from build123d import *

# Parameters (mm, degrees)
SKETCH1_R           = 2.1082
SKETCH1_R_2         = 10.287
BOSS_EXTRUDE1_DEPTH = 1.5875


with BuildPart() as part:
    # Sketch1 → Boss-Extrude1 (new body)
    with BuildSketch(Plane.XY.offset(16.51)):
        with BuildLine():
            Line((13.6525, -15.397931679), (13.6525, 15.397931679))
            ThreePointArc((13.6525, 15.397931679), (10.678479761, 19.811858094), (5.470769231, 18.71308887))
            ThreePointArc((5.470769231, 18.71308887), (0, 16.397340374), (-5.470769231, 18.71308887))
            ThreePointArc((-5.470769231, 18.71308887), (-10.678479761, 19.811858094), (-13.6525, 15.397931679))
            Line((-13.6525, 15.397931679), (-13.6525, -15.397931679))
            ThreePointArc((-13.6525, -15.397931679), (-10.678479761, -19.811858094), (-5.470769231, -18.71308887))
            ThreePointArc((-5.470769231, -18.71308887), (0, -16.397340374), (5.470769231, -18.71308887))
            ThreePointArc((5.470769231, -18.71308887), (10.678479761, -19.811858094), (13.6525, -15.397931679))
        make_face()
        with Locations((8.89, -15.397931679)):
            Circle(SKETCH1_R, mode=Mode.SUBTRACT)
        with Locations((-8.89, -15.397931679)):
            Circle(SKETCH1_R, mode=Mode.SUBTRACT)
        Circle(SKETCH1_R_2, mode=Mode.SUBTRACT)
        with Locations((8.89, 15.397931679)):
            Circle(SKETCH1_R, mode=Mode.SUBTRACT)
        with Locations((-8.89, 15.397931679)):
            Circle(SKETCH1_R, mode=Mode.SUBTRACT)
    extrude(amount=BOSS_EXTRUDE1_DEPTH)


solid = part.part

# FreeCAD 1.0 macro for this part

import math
import FreeCAD as App
import Part
import Sketcher
Q = App.Units.Quantity

doc = App.newDocument("Part")
body = doc.addObject("PartDesign::Body", "Body")

# Sketch on XY plane
sketch1 = doc.addObject("Sketcher::SketchObject", "Sketch")
body.addObject(sketch1)
sketch1.AttachmentSupport = (doc.XY_Plane, [""])
sketch1.MapMode = "FlatFace"
sketch1.AttachmentOffset = App.Placement(App.Vector(0, 0, 0.65 * 25.4), App.Rotation())
sketch1.addGeometry([
    Part.LineSegment(App.Vector(13.7, -15.4, 0), App.Vector(13.7, 15.4, 0)),  # 0
    Part.ArcOfCircle(Part.Circle(App.Vector(8.9, 15.4, 0), App.Vector(0, 0, 1), 4.8), math.radians(0), math.radians(136)),  # 1
    Part.ArcOfCircle(Part.Circle(App.Vector(0, 24, 0), App.Vector(0, 0, 1), 7.6), math.radians(-136), math.radians(-44)),  # 2
    Part.ArcOfCircle(Part.Circle(App.Vector(-8.9, 15.4, 0), App.Vector(0, 0, 1), 4.8), math.radians(44), math.radians(180)),  # 3
    Part.LineSegment(App.Vector(-13.7, 15.4, 0), App.Vector(-13.7, -15.4, 0)),  # 4
    Part.ArcOfCircle(Part.Circle(App.Vector(-8.9, -15.4, 0), App.Vector(0, 0, 1), 4.8), math.radians(180), math.radians(316)),  # 5
    Part.ArcOfCircle(Part.Circle(App.Vector(0, -24, 0), App.Vector(0, 0, 1), 7.6), math.radians(44), math.radians(136)),  # 6
    Part.ArcOfCircle(Part.Circle(App.Vector(8.9, -15.4, 0), App.Vector(0, 0, 1), 4.8), math.radians(-136), math.radians(0)),  # 7
    Part.Circle(App.Vector(-8.9, -15.4, 0), App.Vector(0, 0, 1), 2.1),  # 8
    Part.Circle(App.Vector(8.9, -15.4, 0), App.Vector(0, 0, 1), 2.1),  # 9
    Part.Circle(App.Vector(-8.9, 15.4, 0), App.Vector(0, 0, 1), 2.1),  # 10
    Part.Circle(App.Vector(0, 0, 0), App.Vector(0, 0, 1), 10.3),  # 11
    Part.Circle(App.Vector(8.9, 15.4, 0), App.Vector(0, 0, 1), 2.1),  # 12
], False)
sketch1.addConstraint([
    Sketcher.Constraint("Tangent", 0, 2, 1, 1),
    Sketcher.Constraint("Tangent", 1, 2, 2, 2),
    Sketcher.Constraint("Tangent", 2, 1, 3, 1),
    Sketcher.Constraint("Tangent", 3, 2, 4, 1),
    Sketcher.Constraint("Tangent", 4, 2, 5, 1),
    Sketcher.Constraint("Tangent", 5, 2, 6, 2),
    Sketcher.Constraint("Tangent", 6, 1, 7, 1),
    Sketcher.Constraint("Tangent", 7, 2, 0, 1),
    Sketcher.Constraint("Vertical", 0),
    Sketcher.Constraint("Vertical", 4),
    Sketcher.Constraint("Coincident", 11, 3, -1, 1),
    Sketcher.Constraint("Coincident", 8, 3, 5, 3),
    Sketcher.Constraint("Coincident", 9, 3, 7, 3),
    Sketcher.Constraint("Coincident", 10, 3, 3, 3),
    Sketcher.Constraint("Coincident", 12, 3, 1, 3),
    Sketcher.Constraint("Equal", 1, 3),
    Sketcher.Constraint("Equal", 3, 5),
    Sketcher.Constraint("Equal", 2, 6),
    Sketcher.Constraint("Equal", 5, 7),
    Sketcher.Constraint("Equal", 8, 9),
    Sketcher.Constraint("Equal", 9, 10),
    Sketcher.Constraint("Equal", 10, 12),
    Sketcher.Constraint("Symmetric", 1, 3, 5, 3, -1, 1),
    Sketcher.Constraint("Symmetric", 2, 3, 6, 3, -1),
    Sketcher.Constraint("Radius", 2, Q("0.3 in")),
    Sketcher.Constraint("Diameter", 11, Q("0.81 in")),
    Sketcher.Constraint("Diameter", 8, Q("0.166 in")),
    Sketcher.Constraint("Radius", 1, Q("0.1875 in")),
    Sketcher.Constraint("DistanceX", 3, 3, 1, 3, Q("0.7 in")),
    Sketcher.Constraint("DistanceY", 0, 1, 0, 2, 30.795863),
])
pad1 = doc.addObject("PartDesign::Pad", "Pad")
body.addObject(pad1)
pad1.Profile = sketch1
pad1.Length = Q("0.0625 in")

doc.recompute()
